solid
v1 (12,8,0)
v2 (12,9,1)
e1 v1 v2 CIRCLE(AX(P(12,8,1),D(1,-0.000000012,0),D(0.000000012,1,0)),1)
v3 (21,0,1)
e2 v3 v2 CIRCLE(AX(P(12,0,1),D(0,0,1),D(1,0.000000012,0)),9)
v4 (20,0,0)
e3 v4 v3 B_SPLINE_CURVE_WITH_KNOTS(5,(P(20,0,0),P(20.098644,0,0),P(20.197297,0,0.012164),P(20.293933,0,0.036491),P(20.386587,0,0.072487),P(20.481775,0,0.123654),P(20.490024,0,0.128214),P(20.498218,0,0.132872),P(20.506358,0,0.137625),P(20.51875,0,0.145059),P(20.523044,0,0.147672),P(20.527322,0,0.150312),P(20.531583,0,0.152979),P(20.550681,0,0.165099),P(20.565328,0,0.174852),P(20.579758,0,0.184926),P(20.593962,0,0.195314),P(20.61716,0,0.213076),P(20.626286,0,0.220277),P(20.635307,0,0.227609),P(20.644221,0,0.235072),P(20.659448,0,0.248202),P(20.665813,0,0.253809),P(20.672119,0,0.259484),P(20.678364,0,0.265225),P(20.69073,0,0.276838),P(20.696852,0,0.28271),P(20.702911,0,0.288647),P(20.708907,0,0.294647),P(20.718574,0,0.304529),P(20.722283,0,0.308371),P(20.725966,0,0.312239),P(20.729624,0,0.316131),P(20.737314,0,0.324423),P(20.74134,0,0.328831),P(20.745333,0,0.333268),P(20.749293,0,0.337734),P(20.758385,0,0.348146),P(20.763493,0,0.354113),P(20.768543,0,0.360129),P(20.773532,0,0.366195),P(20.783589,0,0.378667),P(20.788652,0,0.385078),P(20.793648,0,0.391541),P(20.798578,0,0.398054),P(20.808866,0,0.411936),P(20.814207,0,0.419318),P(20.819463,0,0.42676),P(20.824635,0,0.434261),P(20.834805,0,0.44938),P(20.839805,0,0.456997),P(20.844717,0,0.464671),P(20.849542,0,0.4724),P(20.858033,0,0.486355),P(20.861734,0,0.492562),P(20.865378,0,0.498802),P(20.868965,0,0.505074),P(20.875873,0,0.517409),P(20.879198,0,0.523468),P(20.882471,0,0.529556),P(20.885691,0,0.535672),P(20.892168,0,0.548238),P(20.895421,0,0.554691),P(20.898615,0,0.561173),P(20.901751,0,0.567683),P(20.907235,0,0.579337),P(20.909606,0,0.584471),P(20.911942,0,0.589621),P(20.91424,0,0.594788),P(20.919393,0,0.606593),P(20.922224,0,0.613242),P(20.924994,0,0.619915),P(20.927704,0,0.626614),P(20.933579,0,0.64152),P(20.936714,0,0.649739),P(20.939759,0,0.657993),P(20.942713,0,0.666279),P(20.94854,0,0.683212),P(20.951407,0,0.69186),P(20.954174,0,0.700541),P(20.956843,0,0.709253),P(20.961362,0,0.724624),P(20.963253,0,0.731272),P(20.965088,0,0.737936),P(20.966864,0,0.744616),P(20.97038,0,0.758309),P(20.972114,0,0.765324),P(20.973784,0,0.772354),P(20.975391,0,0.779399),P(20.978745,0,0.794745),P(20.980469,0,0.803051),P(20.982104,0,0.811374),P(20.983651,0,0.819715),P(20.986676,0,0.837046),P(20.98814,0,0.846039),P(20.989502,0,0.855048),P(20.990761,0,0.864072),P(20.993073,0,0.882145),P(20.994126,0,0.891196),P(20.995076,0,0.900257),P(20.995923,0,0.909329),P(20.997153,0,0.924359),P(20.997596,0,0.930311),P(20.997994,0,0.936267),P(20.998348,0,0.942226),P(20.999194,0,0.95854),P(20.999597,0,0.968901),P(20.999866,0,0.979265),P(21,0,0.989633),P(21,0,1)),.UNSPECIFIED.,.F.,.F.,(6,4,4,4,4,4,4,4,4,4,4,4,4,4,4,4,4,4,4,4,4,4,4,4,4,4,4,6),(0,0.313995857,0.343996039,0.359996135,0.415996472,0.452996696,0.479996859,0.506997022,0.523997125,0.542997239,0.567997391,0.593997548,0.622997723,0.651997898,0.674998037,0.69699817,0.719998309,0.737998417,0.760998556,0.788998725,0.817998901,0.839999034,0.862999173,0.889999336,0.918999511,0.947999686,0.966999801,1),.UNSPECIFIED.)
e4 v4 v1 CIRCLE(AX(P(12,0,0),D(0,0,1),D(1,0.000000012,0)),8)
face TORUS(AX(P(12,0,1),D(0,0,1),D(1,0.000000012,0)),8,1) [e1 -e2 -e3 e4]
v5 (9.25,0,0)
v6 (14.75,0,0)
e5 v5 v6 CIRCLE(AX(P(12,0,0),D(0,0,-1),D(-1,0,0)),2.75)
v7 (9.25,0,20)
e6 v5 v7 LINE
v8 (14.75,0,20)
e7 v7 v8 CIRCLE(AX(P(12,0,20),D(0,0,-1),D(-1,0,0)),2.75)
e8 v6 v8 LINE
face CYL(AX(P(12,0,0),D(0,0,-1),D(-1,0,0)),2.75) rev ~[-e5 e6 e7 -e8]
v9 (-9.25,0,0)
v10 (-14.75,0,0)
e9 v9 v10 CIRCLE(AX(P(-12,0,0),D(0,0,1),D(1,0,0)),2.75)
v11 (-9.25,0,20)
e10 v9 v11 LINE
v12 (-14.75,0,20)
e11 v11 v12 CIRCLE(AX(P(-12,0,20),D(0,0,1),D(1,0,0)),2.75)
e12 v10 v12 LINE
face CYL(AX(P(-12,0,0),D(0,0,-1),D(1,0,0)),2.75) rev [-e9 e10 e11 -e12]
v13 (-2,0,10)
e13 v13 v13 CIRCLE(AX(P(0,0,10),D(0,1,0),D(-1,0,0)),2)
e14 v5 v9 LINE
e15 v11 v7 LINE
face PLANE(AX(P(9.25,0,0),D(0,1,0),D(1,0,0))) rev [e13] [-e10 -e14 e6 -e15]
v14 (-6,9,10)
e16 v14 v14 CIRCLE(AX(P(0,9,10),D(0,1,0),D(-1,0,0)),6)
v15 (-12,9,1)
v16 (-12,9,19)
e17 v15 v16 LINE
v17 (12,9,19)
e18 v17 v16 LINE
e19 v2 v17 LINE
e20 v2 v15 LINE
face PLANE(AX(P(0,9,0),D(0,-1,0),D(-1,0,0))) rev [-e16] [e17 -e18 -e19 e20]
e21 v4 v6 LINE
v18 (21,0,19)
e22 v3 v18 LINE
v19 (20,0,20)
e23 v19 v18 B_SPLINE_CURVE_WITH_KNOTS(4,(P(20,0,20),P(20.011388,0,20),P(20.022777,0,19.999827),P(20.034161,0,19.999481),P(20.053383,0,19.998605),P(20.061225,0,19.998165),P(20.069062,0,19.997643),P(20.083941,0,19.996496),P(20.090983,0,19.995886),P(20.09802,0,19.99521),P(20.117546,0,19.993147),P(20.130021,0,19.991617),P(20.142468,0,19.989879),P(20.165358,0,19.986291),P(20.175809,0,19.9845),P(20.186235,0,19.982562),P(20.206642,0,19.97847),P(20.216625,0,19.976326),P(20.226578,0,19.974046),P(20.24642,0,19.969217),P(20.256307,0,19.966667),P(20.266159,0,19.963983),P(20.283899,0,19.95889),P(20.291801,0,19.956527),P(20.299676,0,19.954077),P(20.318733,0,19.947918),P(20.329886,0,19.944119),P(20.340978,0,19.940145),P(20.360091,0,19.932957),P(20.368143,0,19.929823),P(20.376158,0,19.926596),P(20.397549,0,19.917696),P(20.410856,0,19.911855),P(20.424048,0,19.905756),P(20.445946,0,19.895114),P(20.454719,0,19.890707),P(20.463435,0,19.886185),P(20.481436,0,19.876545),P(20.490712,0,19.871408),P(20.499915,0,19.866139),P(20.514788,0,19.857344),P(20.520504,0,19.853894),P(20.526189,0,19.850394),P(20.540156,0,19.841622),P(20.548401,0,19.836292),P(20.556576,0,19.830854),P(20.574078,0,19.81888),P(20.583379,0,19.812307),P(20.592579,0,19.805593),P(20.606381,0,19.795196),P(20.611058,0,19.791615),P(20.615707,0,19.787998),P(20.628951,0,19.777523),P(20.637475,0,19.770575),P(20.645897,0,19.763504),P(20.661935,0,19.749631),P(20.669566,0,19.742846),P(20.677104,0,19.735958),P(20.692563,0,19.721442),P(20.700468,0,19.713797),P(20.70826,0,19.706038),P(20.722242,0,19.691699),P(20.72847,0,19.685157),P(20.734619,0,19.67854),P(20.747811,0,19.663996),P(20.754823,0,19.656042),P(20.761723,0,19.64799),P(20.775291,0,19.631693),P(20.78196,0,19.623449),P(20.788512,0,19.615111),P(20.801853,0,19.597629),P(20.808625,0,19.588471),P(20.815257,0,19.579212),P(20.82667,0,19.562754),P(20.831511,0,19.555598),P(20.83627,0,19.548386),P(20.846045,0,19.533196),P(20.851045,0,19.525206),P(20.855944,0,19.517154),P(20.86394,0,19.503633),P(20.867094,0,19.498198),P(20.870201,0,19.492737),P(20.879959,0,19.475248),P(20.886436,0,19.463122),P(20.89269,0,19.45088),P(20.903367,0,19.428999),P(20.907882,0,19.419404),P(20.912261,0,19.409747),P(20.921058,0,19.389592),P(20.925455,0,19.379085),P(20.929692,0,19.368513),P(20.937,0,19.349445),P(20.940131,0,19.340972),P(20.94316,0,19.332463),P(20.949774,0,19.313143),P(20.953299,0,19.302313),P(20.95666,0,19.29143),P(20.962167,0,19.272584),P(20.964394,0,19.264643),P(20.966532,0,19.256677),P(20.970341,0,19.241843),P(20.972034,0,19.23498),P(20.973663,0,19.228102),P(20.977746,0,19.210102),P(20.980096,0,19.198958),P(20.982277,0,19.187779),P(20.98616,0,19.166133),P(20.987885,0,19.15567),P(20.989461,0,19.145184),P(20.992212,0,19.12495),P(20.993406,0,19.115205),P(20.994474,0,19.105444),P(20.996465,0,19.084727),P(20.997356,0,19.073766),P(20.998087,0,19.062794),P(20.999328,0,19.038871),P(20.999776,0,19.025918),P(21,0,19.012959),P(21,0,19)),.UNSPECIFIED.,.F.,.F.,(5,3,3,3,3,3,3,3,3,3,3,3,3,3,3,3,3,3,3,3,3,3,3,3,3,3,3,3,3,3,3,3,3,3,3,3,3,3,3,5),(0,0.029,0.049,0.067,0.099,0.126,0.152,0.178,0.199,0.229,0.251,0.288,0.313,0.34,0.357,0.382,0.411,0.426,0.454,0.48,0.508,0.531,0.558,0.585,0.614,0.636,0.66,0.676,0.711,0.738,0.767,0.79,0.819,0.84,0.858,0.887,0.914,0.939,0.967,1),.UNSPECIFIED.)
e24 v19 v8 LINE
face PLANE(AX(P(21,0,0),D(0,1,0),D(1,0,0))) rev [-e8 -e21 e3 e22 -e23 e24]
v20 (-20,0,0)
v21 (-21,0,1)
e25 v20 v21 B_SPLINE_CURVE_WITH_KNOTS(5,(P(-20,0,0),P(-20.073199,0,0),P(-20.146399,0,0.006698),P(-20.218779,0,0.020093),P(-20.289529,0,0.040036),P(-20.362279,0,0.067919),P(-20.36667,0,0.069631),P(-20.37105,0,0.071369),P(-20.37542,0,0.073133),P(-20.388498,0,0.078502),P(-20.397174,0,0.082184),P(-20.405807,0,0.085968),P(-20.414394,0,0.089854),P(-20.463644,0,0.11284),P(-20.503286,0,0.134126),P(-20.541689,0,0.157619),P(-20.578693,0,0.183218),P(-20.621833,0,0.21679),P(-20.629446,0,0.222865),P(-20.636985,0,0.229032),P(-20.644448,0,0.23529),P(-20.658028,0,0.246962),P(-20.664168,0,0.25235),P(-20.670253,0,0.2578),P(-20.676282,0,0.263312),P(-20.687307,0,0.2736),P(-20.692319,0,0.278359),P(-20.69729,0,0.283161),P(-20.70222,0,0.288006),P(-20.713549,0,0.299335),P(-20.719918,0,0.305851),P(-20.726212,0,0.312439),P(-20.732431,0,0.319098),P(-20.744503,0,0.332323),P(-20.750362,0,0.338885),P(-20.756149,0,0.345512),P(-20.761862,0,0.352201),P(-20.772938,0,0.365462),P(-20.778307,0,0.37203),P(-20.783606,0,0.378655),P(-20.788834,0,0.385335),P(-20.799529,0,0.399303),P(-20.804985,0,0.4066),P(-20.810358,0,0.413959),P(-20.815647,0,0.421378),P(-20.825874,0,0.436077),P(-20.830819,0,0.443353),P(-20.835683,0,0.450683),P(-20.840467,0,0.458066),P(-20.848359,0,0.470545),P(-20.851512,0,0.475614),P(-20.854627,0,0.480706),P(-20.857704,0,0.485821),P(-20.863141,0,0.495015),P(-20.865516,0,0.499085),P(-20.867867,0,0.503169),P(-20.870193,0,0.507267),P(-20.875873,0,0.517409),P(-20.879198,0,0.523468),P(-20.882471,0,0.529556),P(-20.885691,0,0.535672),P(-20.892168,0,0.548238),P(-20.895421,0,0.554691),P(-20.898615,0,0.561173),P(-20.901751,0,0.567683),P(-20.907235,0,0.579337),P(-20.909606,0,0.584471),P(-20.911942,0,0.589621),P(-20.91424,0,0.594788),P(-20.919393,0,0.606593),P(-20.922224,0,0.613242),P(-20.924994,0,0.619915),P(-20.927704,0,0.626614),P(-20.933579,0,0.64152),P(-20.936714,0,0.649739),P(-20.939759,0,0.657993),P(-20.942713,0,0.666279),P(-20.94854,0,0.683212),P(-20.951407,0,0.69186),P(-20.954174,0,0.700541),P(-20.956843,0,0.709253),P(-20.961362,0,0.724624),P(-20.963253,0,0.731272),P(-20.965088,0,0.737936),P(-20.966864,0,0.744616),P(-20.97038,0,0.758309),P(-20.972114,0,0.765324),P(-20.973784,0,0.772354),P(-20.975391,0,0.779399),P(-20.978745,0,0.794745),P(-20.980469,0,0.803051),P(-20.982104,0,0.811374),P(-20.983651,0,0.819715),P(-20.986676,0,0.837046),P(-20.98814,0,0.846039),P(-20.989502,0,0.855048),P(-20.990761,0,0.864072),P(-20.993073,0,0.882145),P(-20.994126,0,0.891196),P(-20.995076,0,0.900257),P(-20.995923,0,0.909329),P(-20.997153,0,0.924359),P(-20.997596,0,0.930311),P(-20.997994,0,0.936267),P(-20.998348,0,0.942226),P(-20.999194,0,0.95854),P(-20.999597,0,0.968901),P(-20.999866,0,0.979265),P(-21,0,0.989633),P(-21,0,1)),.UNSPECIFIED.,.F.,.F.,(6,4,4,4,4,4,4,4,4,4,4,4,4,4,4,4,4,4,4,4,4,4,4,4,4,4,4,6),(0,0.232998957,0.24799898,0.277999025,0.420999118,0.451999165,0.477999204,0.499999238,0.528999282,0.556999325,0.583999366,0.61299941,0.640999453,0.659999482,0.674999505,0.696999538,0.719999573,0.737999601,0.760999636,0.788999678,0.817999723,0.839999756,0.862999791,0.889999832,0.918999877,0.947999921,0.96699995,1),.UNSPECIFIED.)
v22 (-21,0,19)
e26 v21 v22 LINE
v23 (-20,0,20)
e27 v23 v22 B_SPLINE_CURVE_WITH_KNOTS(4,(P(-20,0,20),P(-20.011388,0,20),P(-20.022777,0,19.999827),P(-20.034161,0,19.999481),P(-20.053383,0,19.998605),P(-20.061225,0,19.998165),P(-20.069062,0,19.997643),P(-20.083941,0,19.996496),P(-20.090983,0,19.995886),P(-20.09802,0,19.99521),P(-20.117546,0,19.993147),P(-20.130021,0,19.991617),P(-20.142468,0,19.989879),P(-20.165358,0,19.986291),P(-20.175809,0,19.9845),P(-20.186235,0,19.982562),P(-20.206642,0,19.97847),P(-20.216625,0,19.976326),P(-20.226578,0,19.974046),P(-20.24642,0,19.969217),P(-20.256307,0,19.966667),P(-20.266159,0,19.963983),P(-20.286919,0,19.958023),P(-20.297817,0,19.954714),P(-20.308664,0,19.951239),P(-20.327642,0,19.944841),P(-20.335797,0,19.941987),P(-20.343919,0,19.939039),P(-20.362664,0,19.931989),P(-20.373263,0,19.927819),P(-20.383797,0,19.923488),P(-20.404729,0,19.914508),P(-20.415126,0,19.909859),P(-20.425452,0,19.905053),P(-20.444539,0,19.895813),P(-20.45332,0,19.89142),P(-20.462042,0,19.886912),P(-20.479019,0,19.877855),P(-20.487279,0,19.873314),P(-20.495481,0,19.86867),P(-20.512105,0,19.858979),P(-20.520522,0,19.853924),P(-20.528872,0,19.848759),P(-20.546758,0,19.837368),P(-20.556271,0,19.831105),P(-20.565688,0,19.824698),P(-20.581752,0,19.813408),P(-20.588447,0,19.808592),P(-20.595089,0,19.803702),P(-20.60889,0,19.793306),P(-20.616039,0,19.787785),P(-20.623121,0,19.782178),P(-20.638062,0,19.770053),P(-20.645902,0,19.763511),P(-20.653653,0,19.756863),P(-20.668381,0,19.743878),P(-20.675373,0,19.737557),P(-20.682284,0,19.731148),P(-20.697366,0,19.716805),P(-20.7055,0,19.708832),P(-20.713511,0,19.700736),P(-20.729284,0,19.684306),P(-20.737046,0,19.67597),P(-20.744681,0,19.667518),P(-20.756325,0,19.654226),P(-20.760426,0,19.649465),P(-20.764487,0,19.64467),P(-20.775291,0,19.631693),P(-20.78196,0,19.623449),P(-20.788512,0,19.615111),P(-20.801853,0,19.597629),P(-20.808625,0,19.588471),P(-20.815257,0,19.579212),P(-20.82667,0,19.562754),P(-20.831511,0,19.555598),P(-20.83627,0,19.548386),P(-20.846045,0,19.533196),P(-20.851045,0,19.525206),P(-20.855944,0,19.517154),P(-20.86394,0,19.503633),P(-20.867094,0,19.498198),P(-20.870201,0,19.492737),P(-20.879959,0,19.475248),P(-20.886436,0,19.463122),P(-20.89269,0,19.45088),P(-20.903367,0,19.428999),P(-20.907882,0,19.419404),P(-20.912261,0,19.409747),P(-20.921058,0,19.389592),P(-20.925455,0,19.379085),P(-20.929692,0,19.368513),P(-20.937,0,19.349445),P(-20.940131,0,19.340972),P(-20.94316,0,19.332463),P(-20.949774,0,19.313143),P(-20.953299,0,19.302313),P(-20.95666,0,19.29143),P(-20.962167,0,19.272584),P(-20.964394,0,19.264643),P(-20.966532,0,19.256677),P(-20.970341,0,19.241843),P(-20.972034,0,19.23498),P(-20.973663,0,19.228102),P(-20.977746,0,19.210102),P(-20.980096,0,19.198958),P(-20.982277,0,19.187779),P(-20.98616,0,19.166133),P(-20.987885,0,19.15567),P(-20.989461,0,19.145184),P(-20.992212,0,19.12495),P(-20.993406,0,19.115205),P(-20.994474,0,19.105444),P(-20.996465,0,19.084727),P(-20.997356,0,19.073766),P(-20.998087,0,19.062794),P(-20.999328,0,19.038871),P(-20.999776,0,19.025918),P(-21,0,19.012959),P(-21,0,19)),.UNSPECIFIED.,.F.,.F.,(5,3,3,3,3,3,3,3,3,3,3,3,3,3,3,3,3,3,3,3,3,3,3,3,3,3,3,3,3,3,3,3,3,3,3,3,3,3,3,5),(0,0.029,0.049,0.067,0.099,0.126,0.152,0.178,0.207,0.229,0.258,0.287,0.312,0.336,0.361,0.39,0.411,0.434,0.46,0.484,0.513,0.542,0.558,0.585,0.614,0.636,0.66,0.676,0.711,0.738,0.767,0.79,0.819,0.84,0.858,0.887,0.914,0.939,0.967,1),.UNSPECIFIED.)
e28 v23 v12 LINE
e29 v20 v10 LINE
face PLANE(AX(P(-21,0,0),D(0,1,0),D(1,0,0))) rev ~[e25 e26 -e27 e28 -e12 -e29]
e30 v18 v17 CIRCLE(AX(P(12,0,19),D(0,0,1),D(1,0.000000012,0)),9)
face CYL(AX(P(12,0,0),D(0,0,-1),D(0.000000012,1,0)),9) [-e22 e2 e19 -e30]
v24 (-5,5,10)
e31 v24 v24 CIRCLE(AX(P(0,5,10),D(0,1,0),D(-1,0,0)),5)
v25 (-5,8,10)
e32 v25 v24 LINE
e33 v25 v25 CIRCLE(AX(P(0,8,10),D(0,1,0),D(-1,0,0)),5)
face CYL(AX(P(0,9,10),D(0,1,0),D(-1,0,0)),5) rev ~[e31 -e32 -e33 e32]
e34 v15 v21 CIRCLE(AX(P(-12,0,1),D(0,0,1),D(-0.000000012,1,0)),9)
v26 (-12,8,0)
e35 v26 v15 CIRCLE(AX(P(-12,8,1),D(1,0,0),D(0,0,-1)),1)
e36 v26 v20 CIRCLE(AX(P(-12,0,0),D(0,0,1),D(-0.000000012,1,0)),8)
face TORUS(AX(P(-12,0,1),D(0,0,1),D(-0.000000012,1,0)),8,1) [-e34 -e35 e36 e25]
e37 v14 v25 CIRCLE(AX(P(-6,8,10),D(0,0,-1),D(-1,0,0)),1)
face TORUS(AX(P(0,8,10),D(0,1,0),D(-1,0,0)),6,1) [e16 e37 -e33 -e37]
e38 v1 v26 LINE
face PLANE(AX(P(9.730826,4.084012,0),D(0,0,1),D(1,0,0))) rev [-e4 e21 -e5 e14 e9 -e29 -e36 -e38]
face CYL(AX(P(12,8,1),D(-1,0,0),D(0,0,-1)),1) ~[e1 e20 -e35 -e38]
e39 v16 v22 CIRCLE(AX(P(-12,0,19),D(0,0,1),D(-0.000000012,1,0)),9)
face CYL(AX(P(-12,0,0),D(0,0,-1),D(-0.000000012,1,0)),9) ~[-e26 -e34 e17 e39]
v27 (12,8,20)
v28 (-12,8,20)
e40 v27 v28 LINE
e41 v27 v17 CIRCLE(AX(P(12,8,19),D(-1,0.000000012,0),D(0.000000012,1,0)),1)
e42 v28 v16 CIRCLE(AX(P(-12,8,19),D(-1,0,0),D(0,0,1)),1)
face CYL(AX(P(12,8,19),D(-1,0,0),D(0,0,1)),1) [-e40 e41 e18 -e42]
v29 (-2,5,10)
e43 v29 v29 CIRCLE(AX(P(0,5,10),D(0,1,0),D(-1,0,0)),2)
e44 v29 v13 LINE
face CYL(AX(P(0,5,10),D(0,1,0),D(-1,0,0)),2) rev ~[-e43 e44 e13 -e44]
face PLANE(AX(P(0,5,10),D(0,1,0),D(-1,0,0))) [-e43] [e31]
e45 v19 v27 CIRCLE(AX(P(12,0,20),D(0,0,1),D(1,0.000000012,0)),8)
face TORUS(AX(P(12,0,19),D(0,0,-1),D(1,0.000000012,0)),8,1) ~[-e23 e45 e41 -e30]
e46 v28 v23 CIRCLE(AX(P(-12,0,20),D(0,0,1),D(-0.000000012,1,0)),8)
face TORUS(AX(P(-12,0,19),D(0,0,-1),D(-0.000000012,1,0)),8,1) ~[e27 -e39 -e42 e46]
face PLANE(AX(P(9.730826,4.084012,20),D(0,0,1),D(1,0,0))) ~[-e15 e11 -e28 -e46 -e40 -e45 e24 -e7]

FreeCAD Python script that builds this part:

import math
import FreeCAD as App
import Part
import Sketcher


def edges_at(feature, points):
    """Names of the edges that pass closest to the given points."""
    edges = feature.Shape.Edges
    near = lambda p: min(range(len(edges)), key=lambda i: edges[i].distToShape(Part.Vertex(*p))[0])
    return sorted({f"Edge{near(p) + 1}" for p in points})

doc = App.newDocument("Part")
body = doc.addObject("PartDesign::Body", "Body")

sketch1 = doc.addObject("Sketcher::SketchObject", "Sketch")
body.addObject(sketch1)
sketch1.AttachmentSupport = (doc.XY_Plane, [""])
sketch1.MapMode = "FlatFace"
sketch1.addGeometry([
    Part.LineSegment(App.Vector(0, 0, 0), App.Vector(0, 9, 0)),
    Part.LineSegment(App.Vector(0, 9, 0), App.Vector(-12, 9, 0)),
    Part.ArcOfCircle(Part.Circle(App.Vector(-12, 0, 0), App.Vector(0, 0, 1), 9), math.radians(90.000001), math.radians(179.999999)),
    Part.LineSegment(App.Vector(-21, 0, 0), App.Vector(-14.75, 0, 0)),
    Part.ArcOfCircle(Part.Circle(App.Vector(-12, 0, 0), App.Vector(0, 0, 1), 2.75), math.radians(0), math.radians(180)),
    Part.LineSegment(App.Vector(-9.25, 0, 0), App.Vector(0, 0, 0)),
], False)
sketch1.addConstraint([
    Sketcher.Constraint("Coincident", 0, 2, 1, 1),
    Sketcher.Constraint("Tangent", 1, 2, 2, 1),
    Sketcher.Constraint("Coincident", 2, 2, 3, 1),
    Sketcher.Constraint("Coincident", 3, 2, 4, 2),
    Sketcher.Constraint("Coincident", 4, 1, 5, 1),
    Sketcher.Constraint("Coincident", 5, 2, 0, 1),
    Sketcher.Constraint("Vertical", 0),
    Sketcher.Constraint("Horizontal", 1),
    Sketcher.Constraint("Horizontal", 3),
    Sketcher.Constraint("Horizontal", 5),
    Sketcher.Constraint("Coincident", 5, 2, -1, 1),
    Sketcher.Constraint("Coincident", 4, 3, 2, 3),
    Sketcher.Constraint("PointOnObject", 2, 3, -1),
    Sketcher.Constraint("PointOnObject", 2, 2, -1),
    Sketcher.Constraint("Radius", 2, 9.0),
    Sketcher.Constraint("DistanceX", 1, 2, 1, 1, 12.0),
    Sketcher.Constraint("Radius", 4, 2.75),
])
pad1 = doc.addObject("PartDesign::Pad", "Pad")
body.addObject(pad1)
pad1.Profile = sketch1
pad1.Length = 20
body2 = doc.addObject("PartDesign::Body", "Body001")
doc.recompute()

body2.BaseFeature = body
doc.recompute()

mirroring = doc.addObject("Part::Mirroring", "Mirroring")
mirroring.Source = body
mirroring.Base = App.Vector(0, 0, 0)
mirroring.Normal = App.Vector(1, 0, 0)
body3 = doc.addObject("PartDesign::Body", "Body002")
body3.BaseFeature = mirroring
boolean = doc.addObject("PartDesign::Boolean", "Boolean")
body2.addObject(boolean)
boolean.Type = "Fuse"
boolean.addObjects([body3])
doc.recompute()

sketch2 = doc.addObject("Sketcher::SketchObject", "Sketch001")
body2.addObject(sketch2)
sketch2.AttachmentSupport = (doc.getObject("XZ_Plane001"), [""])
sketch2.MapMode = "FlatFace"
sketch2.AttachmentOffset = App.Placement(App.Vector(0, 0, -9), App.Rotation())
sketch2.addGeometry(Part.Circle(App.Vector(0, 10, 0), App.Vector(0, 0, 1), 5), False)
sketch2.addConstraint([
    Sketcher.Constraint("PointOnObject", 0, 3, -2),
    Sketcher.Constraint("Diameter", 0, 10.0),
    Sketcher.Constraint("DistanceY", -1, 1, 0, 3, 10.0),
])
pocket1 = doc.addObject("PartDesign::Pocket", "Pocket")
body2.addObject(pocket1)
pocket1.Profile = sketch2
pocket1.Length = 4
pocket1.Reversed = True

sketch3 = doc.addObject("Sketcher::SketchObject", "Sketch002")
body2.addObject(sketch3)
sketch3.AttachmentSupport = (doc.getObject("XZ_Plane001"), [""])
sketch3.MapMode = "FlatFace"
sketch3.AttachmentOffset = App.Placement(App.Vector(0, 0, -5), App.Rotation())
sketch3.addGeometry(Part.Circle(App.Vector(0, 10, 0), App.Vector(0, 0, 1), 2), False)
sketch3.addConstraint([
    Sketcher.Constraint("PointOnObject", 0, 3, -2),
    Sketcher.Constraint("Diameter", 0, 4.0),
    Sketcher.Constraint("DistanceY", -1, 1, 0, 3, 10.0),
])
pocket2 = doc.addObject("PartDesign::Pocket", "Pocket001")
body2.addObject(pocket2)
pocket2.Profile = sketch3
pocket2.Length = 5
pocket2.Reversed = True
doc.recompute()

fillet = doc.addObject("PartDesign::Fillet", "Fillet")
body2.addObject(fillet)
fillet.Base = (pocket2, edges_at(pocket2, [
    (-18.364, 6.364, 20),
    (0, 9, 20),
    (0, 9, 20),
    (18.364, 6.364, 20),
    (-18.364, 6.364, 0),
    (0, 9, 0),
    (0, 9, 0),
    (18.364, 6.364, 0),
]))
fillet.Radius = 1
doc.recompute()

fillet2 = doc.addObject("PartDesign::Fillet", "Fillet001")
body2.addObject(fillet2)
fillet2.Base = (fillet, edges_at(fillet, [(5, 9, 10)]))
fillet2.Radius = 1
mirroring.Visibility = False

doc.recompute()
